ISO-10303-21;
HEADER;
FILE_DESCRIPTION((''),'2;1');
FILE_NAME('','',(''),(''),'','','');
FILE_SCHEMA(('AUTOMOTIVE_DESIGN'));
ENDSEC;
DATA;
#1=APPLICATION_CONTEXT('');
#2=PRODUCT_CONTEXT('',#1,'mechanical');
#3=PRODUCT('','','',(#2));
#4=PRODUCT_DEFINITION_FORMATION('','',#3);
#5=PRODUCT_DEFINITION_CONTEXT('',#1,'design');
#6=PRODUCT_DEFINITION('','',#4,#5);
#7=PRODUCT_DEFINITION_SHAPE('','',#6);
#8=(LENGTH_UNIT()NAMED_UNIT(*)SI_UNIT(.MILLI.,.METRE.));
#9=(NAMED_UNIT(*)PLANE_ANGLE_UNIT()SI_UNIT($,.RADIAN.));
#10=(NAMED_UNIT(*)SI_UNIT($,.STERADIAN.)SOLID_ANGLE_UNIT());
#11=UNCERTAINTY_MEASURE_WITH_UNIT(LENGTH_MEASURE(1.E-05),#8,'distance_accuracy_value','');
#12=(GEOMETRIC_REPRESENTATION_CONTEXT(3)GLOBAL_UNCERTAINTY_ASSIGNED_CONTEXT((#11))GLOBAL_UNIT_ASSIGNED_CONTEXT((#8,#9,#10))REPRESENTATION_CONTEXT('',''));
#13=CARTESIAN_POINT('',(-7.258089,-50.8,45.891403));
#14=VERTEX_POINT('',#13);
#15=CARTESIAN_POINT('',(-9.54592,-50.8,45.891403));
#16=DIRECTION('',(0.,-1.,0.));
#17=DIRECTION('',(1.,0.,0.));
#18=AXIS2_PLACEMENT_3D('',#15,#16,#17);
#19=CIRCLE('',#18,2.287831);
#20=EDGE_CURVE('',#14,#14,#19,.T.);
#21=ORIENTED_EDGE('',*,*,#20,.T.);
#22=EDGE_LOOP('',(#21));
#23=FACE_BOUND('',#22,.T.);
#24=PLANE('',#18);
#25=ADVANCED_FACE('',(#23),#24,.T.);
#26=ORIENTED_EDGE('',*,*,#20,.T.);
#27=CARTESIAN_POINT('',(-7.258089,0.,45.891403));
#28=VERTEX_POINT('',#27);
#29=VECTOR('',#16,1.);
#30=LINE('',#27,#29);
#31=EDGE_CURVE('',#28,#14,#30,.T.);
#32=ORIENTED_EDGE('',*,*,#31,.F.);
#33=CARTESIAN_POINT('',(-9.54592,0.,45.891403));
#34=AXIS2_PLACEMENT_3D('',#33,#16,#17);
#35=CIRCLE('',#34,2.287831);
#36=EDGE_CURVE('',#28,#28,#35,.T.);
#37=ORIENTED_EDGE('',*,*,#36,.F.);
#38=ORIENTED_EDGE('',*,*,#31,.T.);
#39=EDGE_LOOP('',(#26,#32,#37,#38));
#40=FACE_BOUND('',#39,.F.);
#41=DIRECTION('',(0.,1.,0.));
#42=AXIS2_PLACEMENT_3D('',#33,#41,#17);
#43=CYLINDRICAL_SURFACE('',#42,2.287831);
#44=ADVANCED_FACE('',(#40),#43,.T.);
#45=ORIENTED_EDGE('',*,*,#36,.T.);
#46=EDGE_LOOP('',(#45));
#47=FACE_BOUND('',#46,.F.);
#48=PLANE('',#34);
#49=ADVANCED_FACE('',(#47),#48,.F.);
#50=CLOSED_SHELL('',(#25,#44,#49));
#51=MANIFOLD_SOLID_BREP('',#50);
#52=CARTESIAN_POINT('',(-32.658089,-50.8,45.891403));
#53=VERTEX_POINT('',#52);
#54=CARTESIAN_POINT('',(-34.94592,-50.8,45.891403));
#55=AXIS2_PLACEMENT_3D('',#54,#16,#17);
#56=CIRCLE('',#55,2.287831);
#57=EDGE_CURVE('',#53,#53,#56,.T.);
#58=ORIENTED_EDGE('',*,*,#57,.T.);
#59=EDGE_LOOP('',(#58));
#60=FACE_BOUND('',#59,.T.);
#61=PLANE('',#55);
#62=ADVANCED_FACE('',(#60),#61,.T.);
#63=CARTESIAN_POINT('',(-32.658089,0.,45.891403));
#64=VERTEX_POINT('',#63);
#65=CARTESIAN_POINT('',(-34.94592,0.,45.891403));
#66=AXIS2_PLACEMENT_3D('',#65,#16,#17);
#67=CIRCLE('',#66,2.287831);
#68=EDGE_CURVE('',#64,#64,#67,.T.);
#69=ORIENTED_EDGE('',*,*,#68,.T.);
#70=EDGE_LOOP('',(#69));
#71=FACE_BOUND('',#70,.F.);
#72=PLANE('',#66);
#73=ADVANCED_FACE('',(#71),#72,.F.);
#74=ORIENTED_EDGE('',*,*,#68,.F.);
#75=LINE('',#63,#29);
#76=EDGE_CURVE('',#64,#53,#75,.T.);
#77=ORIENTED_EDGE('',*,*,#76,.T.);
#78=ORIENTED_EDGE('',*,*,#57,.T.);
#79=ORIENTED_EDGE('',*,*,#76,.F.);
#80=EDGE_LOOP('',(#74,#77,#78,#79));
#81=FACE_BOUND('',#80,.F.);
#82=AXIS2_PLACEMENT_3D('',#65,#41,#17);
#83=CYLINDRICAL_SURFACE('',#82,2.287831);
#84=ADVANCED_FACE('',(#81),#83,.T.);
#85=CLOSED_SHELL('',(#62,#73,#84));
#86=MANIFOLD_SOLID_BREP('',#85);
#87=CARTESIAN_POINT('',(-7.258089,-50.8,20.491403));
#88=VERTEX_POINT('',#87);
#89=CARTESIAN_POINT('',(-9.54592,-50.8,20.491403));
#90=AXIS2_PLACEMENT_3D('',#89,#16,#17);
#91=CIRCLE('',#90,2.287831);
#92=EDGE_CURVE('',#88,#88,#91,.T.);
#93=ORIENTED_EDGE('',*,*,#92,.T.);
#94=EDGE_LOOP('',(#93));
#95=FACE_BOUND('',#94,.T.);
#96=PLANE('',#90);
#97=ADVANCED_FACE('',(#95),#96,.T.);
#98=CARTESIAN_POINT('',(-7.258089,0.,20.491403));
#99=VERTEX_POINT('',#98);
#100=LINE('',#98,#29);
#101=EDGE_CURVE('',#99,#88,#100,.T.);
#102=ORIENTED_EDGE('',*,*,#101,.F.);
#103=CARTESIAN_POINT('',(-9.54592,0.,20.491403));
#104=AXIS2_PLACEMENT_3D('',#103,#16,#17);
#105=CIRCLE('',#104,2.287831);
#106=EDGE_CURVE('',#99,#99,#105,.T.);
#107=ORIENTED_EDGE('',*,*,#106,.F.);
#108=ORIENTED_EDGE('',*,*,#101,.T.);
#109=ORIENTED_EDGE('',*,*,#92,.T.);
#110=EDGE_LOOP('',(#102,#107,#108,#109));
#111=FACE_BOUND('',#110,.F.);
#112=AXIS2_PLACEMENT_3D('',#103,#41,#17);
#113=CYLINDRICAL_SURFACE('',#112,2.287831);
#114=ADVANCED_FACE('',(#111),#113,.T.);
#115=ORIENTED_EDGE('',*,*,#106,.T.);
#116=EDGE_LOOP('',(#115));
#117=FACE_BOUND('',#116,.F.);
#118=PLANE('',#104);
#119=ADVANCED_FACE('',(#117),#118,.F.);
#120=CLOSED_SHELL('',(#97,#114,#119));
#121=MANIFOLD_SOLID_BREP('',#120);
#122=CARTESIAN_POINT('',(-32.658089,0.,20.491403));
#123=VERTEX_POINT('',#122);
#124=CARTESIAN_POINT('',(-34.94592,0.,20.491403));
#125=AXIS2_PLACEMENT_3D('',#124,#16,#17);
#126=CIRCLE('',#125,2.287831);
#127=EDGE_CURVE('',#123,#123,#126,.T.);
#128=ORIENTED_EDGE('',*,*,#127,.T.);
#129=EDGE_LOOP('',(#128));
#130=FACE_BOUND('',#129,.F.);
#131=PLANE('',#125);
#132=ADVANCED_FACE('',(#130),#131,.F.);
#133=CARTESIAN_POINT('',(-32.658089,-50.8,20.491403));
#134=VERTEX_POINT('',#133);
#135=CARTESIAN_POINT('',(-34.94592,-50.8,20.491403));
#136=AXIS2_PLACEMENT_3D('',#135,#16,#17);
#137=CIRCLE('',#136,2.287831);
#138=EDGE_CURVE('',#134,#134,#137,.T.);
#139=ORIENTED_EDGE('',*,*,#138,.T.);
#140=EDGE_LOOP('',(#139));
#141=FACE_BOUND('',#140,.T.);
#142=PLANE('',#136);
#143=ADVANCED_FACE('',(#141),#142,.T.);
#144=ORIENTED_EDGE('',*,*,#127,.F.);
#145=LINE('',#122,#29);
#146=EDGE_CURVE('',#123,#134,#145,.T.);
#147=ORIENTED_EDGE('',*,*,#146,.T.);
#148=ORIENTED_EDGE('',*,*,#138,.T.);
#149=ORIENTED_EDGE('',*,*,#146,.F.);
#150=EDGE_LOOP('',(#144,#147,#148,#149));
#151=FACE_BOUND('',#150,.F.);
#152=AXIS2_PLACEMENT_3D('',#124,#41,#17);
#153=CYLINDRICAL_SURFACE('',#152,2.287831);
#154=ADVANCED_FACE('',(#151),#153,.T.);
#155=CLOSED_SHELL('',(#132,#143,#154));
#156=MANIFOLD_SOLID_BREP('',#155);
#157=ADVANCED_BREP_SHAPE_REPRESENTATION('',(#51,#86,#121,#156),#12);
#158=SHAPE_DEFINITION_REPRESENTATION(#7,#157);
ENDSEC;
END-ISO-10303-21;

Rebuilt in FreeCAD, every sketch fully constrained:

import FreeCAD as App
import Part
import Sketcher
from FreeCAD import Vector
Q = App.Units.Quantity

doc = App.newDocument("Part")
body = doc.addObject("PartDesign::Body", "Body")
body.AllowCompound = True

sketch1 = doc.addObject("Sketcher::SketchObject", "Sketch")
body.addObject(sketch1)
sketch1.AttachmentSupport = (doc.XZ_Plane, [""])
sketch1.MapMode = "FlatFace"
sketch1.addGeometry([
    Part.Circle(Vector(-34.94592, 45.891403, 0), Vector(0, 0, 1), 2.287831),
    Part.Circle(Vector(-9.54592, 45.891403, 0), Vector(0, 0, 1), 2.287831),
    Part.Circle(Vector(-9.54592, 20.491403, 0), Vector(0, 0, 1), 2.287831),
    Part.Circle(Vector(-34.94592, 20.491403, 0), Vector(0, 0, 1), 2.287831),
], False)
sketch1.addConstraint([
    Sketcher.Constraint("Equal", 0, 1),
    Sketcher.Constraint("Equal", 1, 2),
    Sketcher.Constraint("Equal", 2, 3),
    Sketcher.Constraint("Horizontal", 0, 3, 1, 3),
    Sketcher.Constraint("Horizontal", 2, 3, 3, 3),
    Sketcher.Constraint("Vertical", 1, 3, 2, 3),
    Sketcher.Constraint("Vertical", 0, 3, 3, 3),
    Sketcher.Constraint("DistanceX", 0, 3, 1, 3, Q("1 in")),
    Sketcher.Constraint("DistanceY", 2, 3, 1, 3, Q("1 in")),
    Sketcher.Constraint("Diameter", 0, Q("4.575662 mm")),
    Sketcher.Constraint("DistanceX", 0, 3, -1, 1, Q("34.94592 mm")),
    Sketcher.Constraint("DistanceY", -1, 1, 0, 3, Q("45.891403 mm")),
])
pad1 = doc.addObject("PartDesign::Pad", "Pad")
body.addObject(pad1)
pad1.Profile = sketch1
pad1.Length = Q("2 in")

doc.recompute()
